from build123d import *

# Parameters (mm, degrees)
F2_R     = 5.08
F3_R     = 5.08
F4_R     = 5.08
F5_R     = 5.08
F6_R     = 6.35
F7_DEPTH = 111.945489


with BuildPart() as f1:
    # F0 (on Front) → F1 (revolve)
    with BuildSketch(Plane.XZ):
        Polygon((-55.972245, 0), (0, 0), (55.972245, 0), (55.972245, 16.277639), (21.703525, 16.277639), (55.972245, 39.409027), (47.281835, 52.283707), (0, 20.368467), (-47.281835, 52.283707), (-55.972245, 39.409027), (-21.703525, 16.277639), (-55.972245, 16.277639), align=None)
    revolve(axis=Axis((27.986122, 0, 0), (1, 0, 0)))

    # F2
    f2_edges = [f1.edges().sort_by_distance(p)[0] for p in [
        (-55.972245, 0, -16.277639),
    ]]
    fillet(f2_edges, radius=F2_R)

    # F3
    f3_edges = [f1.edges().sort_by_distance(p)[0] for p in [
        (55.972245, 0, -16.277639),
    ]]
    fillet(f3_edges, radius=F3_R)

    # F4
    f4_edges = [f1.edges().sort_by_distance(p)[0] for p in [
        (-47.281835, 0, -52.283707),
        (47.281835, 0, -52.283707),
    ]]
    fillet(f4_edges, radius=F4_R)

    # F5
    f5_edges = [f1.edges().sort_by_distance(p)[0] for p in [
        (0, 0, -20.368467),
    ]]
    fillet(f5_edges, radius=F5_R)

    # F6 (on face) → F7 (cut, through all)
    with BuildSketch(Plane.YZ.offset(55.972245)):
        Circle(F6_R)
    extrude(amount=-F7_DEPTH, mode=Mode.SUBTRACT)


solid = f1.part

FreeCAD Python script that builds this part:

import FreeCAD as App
import Part
import Sketcher
from FreeCAD import Vector
Q = App.Units.Quantity


def edges_at(feature, points):
    """Names of the edges that pass closest to the given points."""
    edges = feature.Shape.Edges
    near = lambda p: min(range(len(edges)), key=lambda i: edges[i].distToShape(Part.Vertex(*p))[0])
    return sorted({f"Edge{near(p) + 1}" for p in points})

doc = App.newDocument("Part")
body = doc.addObject("PartDesign::Body", "Body")

# Sketch on XZ plane
sketch1 = body.newObject("Sketcher::SketchObject", "Sketch")
sketch1.AttachmentSupport = (doc.getObject("XZ_Plane"), [""])
sketch1.MapMode = "FlatFace"
sketch1.addGeometry(Part.LineSegment(Vector(-56, 0, 0), Vector(56, 0, 0)), False)
sketch1.addGeometry(Part.LineSegment(Vector(56, 0, 0), Vector(56, 16, 0)), False)
sketch1.addGeometry(Part.LineSegment(Vector(56, 16, 0), Vector(22, 16, 0)), False)
sketch1.addGeometry(Part.LineSegment(Vector(22, 16, 0), Vector(56, 39, 0)), False)
sketch1.addGeometry(Part.LineSegment(Vector(56, 39, 0), Vector(47, 52, 0)), False)
sketch1.addGeometry(Part.LineSegment(Vector(47, 52, 0), Vector(0, 20, 0)), False)
sketch1.addGeometry(Part.LineSegment(Vector(0, 20, 0), Vector(-47, 52, 0)), False)
sketch1.addGeometry(Part.LineSegment(Vector(-47, 52, 0), Vector(-56, 39, 0)), False)
sketch1.addGeometry(Part.LineSegment(Vector(-56, 39, 0), Vector(-22, 16, 0)), False)
sketch1.addGeometry(Part.LineSegment(Vector(-22, 16, 0), Vector(-56, 16, 0)), False)
sketch1.addGeometry(Part.LineSegment(Vector(-56, 16, 0), Vector(-56, 0, 0)), False)
sketch1.addConstraint(Sketcher.Constraint("Coincident", 0, 2, 1, 1))
sketch1.addConstraint(Sketcher.Constraint("Coincident", 1, 2, 2, 1))
sketch1.addConstraint(Sketcher.Constraint("Coincident", 2, 2, 3, 1))
sketch1.addConstraint(Sketcher.Constraint("Coincident", 3, 2, 4, 1))
sketch1.addConstraint(Sketcher.Constraint("Coincident", 4, 2, 5, 1))
sketch1.addConstraint(Sketcher.Constraint("Coincident", 5, 2, 6, 1))
sketch1.addConstraint(Sketcher.Constraint("Coincident", 6, 2, 7, 1))
sketch1.addConstraint(Sketcher.Constraint("Coincident", 7, 2, 8, 1))
sketch1.addConstraint(Sketcher.Constraint("Coincident", 8, 2, 9, 1))
sketch1.addConstraint(Sketcher.Constraint("Coincident", 9, 2, 10, 1))
sketch1.addConstraint(Sketcher.Constraint("Coincident", 10, 2, 0, 1))
sketch1.addConstraint(Sketcher.Constraint("Horizontal", 0))
sketch1.addConstraint(Sketcher.Constraint("Vertical", 1))
sketch1.addConstraint(Sketcher.Constraint("Horizontal", 2))
sketch1.addConstraint(Sketcher.Constraint("Horizontal", 9))
sketch1.addConstraint(Sketcher.Constraint("Vertical", 10))
sketch1.addConstraint(Sketcher.Constraint("Symmetric", 0, 2, 10, 2, -1, 1))
sketch1.addConstraint(Sketcher.Constraint("Symmetric", 4, 2, 6, 2, -2))
sketch1.addConstraint(Sketcher.Constraint("Symmetric", 3, 2, 7, 2, -2))
sketch1.addConstraint(Sketcher.Constraint("Symmetric", 2, 2, 8, 2, -2))
sketch1.addConstraint(Sketcher.Constraint("PointOnObject", 5, 2, -2))
sketch1.addConstraint(Sketcher.Constraint("Perpendicular", 3, 4))
sketch1.addConstraint(Sketcher.Constraint("Perpendicular", 4, 5))
sketch1.addConstraint(Sketcher.Constraint("Vertical", 1, 2, 3, 2))
sketch1.addConstraint(Sketcher.Constraint("DistanceX", 0, 1, 0, 2, 111.94449))
sketch1.addConstraint(Sketcher.Constraint("DistanceX", 2, 2, 2, 1, 34.26872))
sketch1.addConstraint(Sketcher.Constraint("DistanceY", 1, 1, 1, 2, 16.277639))
sketch1.addConstraint(Sketcher.Constraint("Distance", 4, 15.53321))
sketch1.addConstraint(Sketcher.Constraint("DistanceY", 1, 2, 3, 2, 23.131388))
revolution = body.newObject("PartDesign::Revolution", "Revolution")
revolution.Profile = sketch1
revolution.ReferenceAxis = (sketch1, ["H_Axis"])
revolution.Angle = 360
doc.recompute()

fillet = body.newObject("PartDesign::Fillet", "Fillet")
fillet.Base = (revolution, edges_at(revolution, [(-55.972, 0, -16.278)]))
fillet.Radius = Q("0.2 in")
doc.recompute()

fillet2 = body.newObject("PartDesign::Fillet", "Fillet001")
fillet2.Base = (fillet, edges_at(fillet, [(55.972, 0, -16.278)]))
fillet2.Radius = Q("0.2 in")
doc.recompute()

fillet3 = body.newObject("PartDesign::Fillet", "Fillet002")
fillet3.Base = (fillet2, edges_at(fillet2, [(-47.282, 0, -52.284), (47.282, 0, -52.284)]))
fillet3.Radius = Q("0.2 in")
doc.recompute()

fillet4 = body.newObject("PartDesign::Fillet", "Fillet003")
fillet4.Base = (fillet3, edges_at(fillet3, [(0, 0, -20.368)]))
fillet4.Radius = Q("0.2 in")

# Sketch on YZ plane
sketch2 = body.newObject("Sketcher::SketchObject", "Sketch001")
sketch2.AttachmentSupport = (doc.getObject("YZ_Plane"), [""])
sketch2.MapMode = "FlatFace"
sketch2.AttachmentOffset = App.Placement(Vector(0, 0, 55.972245), App.Rotation())
sketch2.addGeometry(Part.Circle(Vector(0, 0, 0), Vector(0, 0, 1), 6), False)
sketch2.addConstraint(Sketcher.Constraint("Coincident", 0, 3, -1, 1))
sketch2.addConstraint(Sketcher.Constraint("Diameter", 0, Q("0.5 in")))
pocket1 = body.newObject("PartDesign::Pocket", "Pocket")
pocket1.Profile = sketch2
pocket1.Type = "ThroughAll"

doc.recompute()
